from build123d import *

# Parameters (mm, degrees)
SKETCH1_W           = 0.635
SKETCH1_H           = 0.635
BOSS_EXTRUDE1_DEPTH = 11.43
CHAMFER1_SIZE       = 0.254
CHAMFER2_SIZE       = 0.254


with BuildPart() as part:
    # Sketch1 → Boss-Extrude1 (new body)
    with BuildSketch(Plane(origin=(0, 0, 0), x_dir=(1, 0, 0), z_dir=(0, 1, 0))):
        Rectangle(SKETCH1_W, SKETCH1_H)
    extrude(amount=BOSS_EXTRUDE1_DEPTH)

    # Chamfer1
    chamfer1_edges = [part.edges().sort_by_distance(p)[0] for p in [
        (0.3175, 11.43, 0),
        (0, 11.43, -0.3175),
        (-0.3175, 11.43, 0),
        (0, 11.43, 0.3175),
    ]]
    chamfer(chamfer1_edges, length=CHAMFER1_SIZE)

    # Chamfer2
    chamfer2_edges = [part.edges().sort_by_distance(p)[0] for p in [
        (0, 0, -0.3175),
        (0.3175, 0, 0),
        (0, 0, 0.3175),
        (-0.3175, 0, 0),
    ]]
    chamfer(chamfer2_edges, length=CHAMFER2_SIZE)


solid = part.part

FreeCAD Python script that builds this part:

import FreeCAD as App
import Part
import Sketcher

V = App.Vector
Q = App.Units.Quantity


def edges_at(feature, points):
    """Names of the edges that pass closest to the given points."""
    edges = feature.Shape.Edges
    near = lambda p: min(range(len(edges)), key=lambda i: edges[i].distToShape(Part.Vertex(*p))[0])
    return sorted({f"Edge{near(p) + 1}" for p in points})

doc = App.newDocument("Part")
params = doc.addObject("Spreadsheet::Sheet", "Params")
for row, (alias, value) in enumerate([
    ("sketch1_width", "0.025 in"),
    ("pad1_length", "0.45 in"),
    ("chamfer_size", "0.01 in"),
    ("chamfer2_size", "0.01 in"),
], start=1):
    params.set(f"A{row}", alias)
    params.set(f"B{row}", "=" + value)
    params.setAlias(f"B{row}", alias)

body = doc.addObject("PartDesign::Body", "Body")

# Sketch on XZ plane
sketch1 = doc.addObject("Sketcher::SketchObject", "Sketch")
body.addObject(sketch1)
sketch1.AttachmentSupport = (doc.XZ_Plane, [""])
sketch1.MapMode = "FlatFace"
sketch1.addGeometry(Part.LineSegment(V(-0.3, -0.3, 0), V(-0.3, 0.3, 0)), False)
sketch1.addGeometry(Part.LineSegment(V(-0.3, 0.3, 0), V(0.3, 0.3, 0)), False)
sketch1.addGeometry(Part.LineSegment(V(0.3, 0.3, 0), V(0.3, -0.3, 0)), False)
sketch1.addGeometry(Part.LineSegment(V(0.3, -0.3, 0), V(-0.3, -0.3, 0)), False)
sketch1.addConstraint(Sketcher.Constraint("Coincident", 0, 2, 1, 1))
sketch1.addConstraint(Sketcher.Constraint("Coincident", 1, 2, 2, 1))
sketch1.addConstraint(Sketcher.Constraint("Coincident", 2, 2, 3, 1))
sketch1.addConstraint(Sketcher.Constraint("Coincident", 3, 2, 0, 1))
sketch1.addConstraint(Sketcher.Constraint("Vertical", 0))
sketch1.addConstraint(Sketcher.Constraint("Horizontal", 1))
sketch1.addConstraint(Sketcher.Constraint("Vertical", 2))
sketch1.addConstraint(Sketcher.Constraint("Horizontal", 3))
sketch1.addConstraint(Sketcher.Constraint("Symmetric", 0, 2, 2, 2, -1, 1))
sketch1.addConstraint(Sketcher.Constraint("Equal", 3, 0))
sketch1.addConstraint(Sketcher.Constraint("DistanceX", 1, 1, 1, 2, Q("0.025 in")))
sketch1.setExpression("Constraints[10]", "Params.sketch1_width")
pad1 = doc.addObject("PartDesign::Pad", "Pad")
body.addObject(pad1)
pad1.Profile = sketch1
pad1.setExpression("Length", "Params.pad1_length")
pad1.Reversed = True
doc.recompute()

chamfer = doc.addObject("PartDesign::Chamfer", "Chamfer")
body.addObject(chamfer)
chamfer.Base = (pad1, edges_at(pad1, [
    (0.318, 11.43, 0),
    (0, 11.43, -0.318),
    (-0.318, 11.43, 0),
    (0, 11.43, 0.318),
]))
chamfer.setExpression("Size", "Params.chamfer_size")
doc.recompute()

chamfer2 = doc.addObject("PartDesign::Chamfer", "Chamfer001")
body.addObject(chamfer2)
chamfer2.Base = (chamfer, edges_at(chamfer, [
    (0, 0, -0.318),
    (0.318, 0, 0),
    (0, 0, 0.318),
    (-0.318, 0, 0),
]))
chamfer2.setExpression("Size", "Params.chamfer2_size")

doc.recompute()
